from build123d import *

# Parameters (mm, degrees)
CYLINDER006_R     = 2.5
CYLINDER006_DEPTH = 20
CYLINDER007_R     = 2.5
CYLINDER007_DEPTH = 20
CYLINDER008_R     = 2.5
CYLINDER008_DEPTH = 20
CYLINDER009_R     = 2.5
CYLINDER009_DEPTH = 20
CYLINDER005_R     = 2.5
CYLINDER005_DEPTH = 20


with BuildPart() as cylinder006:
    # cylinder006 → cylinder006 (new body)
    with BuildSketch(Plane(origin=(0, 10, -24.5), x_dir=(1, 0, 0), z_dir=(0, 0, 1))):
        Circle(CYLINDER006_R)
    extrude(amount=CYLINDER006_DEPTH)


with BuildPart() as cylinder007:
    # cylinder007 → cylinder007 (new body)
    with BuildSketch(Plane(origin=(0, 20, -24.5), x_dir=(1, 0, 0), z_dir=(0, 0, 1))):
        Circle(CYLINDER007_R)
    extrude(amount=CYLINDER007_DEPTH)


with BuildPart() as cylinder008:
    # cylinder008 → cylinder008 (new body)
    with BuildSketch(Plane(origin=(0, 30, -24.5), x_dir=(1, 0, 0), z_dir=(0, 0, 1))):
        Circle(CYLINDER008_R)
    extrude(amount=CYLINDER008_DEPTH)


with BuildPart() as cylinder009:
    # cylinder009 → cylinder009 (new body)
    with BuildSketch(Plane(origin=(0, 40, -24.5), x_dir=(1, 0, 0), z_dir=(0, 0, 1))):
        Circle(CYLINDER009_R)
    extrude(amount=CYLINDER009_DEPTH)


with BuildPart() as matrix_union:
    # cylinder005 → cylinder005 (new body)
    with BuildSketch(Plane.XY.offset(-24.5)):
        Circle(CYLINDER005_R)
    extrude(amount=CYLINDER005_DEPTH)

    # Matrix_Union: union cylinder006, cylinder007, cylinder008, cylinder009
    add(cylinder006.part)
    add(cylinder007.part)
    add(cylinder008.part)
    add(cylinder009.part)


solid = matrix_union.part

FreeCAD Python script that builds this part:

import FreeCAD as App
import Part
import Sketcher

V = App.Vector
Q = App.Units.Quantity

doc = App.newDocument("Part")
body = doc.addObject("PartDesign::Body", "Body")

# Sketch on XY plane
sketch1 = body.newObject("Sketcher::SketchObject", "Sketch")
sketch1.AttachmentSupport = (doc.getObject("XY_Plane"), [""])
sketch1.MapMode = "FlatFace"
sketch1.AttachmentOffset = App.Placement(V(0, 0, -24.5), App.Rotation())
sketch1.addGeometry(Part.Circle(V(0, 10, 0), V(0, 0, 1), 2.5), False)
sketch1.addConstraint(Sketcher.Constraint("PointOnObject", 0, 3, -2))
sketch1.addConstraint(Sketcher.Constraint("Diameter", 0, Q("5 mm")))
sketch1.addConstraint(Sketcher.Constraint("DistanceY", -1, 1, 0, 3, Q("10 mm")))
pad1 = body.newObject("PartDesign::Pad", "Pad")
pad1.Profile = sketch1
pad1.Length = 20
body2 = doc.addObject("PartDesign::Body", "Body001")

# Sketch on XY plane
sketch2 = body2.newObject("Sketcher::SketchObject", "Sketch001")
sketch2.AttachmentSupport = (doc.getObject("XY_Plane001"), [""])
sketch2.MapMode = "FlatFace"
sketch2.AttachmentOffset = App.Placement(V(0, 0, -24.5), App.Rotation())
sketch2.addGeometry(Part.Circle(V(0, 20, 0), V(0, 0, 1), 2.5), False)
sketch2.addConstraint(Sketcher.Constraint("PointOnObject", 0, 3, -2))
sketch2.addConstraint(Sketcher.Constraint("Diameter", 0, Q("5 mm")))
sketch2.addConstraint(Sketcher.Constraint("DistanceY", -1, 1, 0, 3, Q("20 mm")))
pad2 = body2.newObject("PartDesign::Pad", "Pad001")
pad2.Profile = sketch2
pad2.Length = 20
body3 = doc.addObject("PartDesign::Body", "Body002")

# Sketch on XY plane
sketch3 = body3.newObject("Sketcher::SketchObject", "Sketch002")
sketch3.AttachmentSupport = (doc.getObject("XY_Plane002"), [""])
sketch3.MapMode = "FlatFace"
sketch3.AttachmentOffset = App.Placement(V(0, 0, -24.5), App.Rotation())
sketch3.addGeometry(Part.Circle(V(0, 30, 0), V(0, 0, 1), 2.5), False)
sketch3.addConstraint(Sketcher.Constraint("PointOnObject", 0, 3, -2))
sketch3.addConstraint(Sketcher.Constraint("Diameter", 0, Q("5 mm")))
sketch3.addConstraint(Sketcher.Constraint("DistanceY", -1, 1, 0, 3, Q("30 mm")))
pad3 = body3.newObject("PartDesign::Pad", "Pad002")
pad3.Profile = sketch3
pad3.Length = 20
body4 = doc.addObject("PartDesign::Body", "Body003")

# Sketch on XY plane
sketch4 = body4.newObject("Sketcher::SketchObject", "Sketch003")
sketch4.AttachmentSupport = (doc.getObject("XY_Plane003"), [""])
sketch4.MapMode = "FlatFace"
sketch4.AttachmentOffset = App.Placement(V(0, 0, -24.5), App.Rotation())
sketch4.addGeometry(Part.Circle(V(0, 40, 0), V(0, 0, 1), 2.5), False)
sketch4.addConstraint(Sketcher.Constraint("PointOnObject", 0, 3, -2))
sketch4.addConstraint(Sketcher.Constraint("Diameter", 0, Q("5 mm")))
sketch4.addConstraint(Sketcher.Constraint("DistanceY", -1, 1, 0, 3, Q("40 mm")))
pad4 = body4.newObject("PartDesign::Pad", "Pad003")
pad4.Profile = sketch4
pad4.Length = 20
body5 = doc.addObject("PartDesign::Body", "Body004")
body5.AllowCompound = True

# Sketch on XY plane
sketch5 = body5.newObject("Sketcher::SketchObject", "Sketch004")
sketch5.AttachmentSupport = (doc.getObject("XY_Plane004"), [""])
sketch5.MapMode = "FlatFace"
sketch5.AttachmentOffset = App.Placement(V(0, 0, -24.5), App.Rotation())
sketch5.addGeometry(Part.Circle(V(0, 0, 0), V(0, 0, 1), 2.5), False)
sketch5.addConstraint(Sketcher.Constraint("Coincident", 0, 3, -1, 1))
sketch5.addConstraint(Sketcher.Constraint("Diameter", 0, Q("5 mm")))
pad5 = body5.newObject("PartDesign::Pad", "Pad004")
pad5.Profile = sketch5
pad5.Length = 20
doc.recompute()

boolean = body5.newObject("PartDesign::Boolean", "Boolean")
boolean.Type = "Fuse"
boolean.addObjects([body])
doc.recompute()

boolean2 = body5.newObject("PartDesign::Boolean", "Boolean001")
boolean2.Type = "Fuse"
boolean2.addObjects([body2])
doc.recompute()

boolean3 = body5.newObject("PartDesign::Boolean", "Boolean002")
boolean3.Type = "Fuse"
boolean3.addObjects([body3])
doc.recompute()

boolean4 = body5.newObject("PartDesign::Boolean", "Boolean003")
boolean4.Type = "Fuse"
boolean4.addObjects([body4])

doc.recompute()
